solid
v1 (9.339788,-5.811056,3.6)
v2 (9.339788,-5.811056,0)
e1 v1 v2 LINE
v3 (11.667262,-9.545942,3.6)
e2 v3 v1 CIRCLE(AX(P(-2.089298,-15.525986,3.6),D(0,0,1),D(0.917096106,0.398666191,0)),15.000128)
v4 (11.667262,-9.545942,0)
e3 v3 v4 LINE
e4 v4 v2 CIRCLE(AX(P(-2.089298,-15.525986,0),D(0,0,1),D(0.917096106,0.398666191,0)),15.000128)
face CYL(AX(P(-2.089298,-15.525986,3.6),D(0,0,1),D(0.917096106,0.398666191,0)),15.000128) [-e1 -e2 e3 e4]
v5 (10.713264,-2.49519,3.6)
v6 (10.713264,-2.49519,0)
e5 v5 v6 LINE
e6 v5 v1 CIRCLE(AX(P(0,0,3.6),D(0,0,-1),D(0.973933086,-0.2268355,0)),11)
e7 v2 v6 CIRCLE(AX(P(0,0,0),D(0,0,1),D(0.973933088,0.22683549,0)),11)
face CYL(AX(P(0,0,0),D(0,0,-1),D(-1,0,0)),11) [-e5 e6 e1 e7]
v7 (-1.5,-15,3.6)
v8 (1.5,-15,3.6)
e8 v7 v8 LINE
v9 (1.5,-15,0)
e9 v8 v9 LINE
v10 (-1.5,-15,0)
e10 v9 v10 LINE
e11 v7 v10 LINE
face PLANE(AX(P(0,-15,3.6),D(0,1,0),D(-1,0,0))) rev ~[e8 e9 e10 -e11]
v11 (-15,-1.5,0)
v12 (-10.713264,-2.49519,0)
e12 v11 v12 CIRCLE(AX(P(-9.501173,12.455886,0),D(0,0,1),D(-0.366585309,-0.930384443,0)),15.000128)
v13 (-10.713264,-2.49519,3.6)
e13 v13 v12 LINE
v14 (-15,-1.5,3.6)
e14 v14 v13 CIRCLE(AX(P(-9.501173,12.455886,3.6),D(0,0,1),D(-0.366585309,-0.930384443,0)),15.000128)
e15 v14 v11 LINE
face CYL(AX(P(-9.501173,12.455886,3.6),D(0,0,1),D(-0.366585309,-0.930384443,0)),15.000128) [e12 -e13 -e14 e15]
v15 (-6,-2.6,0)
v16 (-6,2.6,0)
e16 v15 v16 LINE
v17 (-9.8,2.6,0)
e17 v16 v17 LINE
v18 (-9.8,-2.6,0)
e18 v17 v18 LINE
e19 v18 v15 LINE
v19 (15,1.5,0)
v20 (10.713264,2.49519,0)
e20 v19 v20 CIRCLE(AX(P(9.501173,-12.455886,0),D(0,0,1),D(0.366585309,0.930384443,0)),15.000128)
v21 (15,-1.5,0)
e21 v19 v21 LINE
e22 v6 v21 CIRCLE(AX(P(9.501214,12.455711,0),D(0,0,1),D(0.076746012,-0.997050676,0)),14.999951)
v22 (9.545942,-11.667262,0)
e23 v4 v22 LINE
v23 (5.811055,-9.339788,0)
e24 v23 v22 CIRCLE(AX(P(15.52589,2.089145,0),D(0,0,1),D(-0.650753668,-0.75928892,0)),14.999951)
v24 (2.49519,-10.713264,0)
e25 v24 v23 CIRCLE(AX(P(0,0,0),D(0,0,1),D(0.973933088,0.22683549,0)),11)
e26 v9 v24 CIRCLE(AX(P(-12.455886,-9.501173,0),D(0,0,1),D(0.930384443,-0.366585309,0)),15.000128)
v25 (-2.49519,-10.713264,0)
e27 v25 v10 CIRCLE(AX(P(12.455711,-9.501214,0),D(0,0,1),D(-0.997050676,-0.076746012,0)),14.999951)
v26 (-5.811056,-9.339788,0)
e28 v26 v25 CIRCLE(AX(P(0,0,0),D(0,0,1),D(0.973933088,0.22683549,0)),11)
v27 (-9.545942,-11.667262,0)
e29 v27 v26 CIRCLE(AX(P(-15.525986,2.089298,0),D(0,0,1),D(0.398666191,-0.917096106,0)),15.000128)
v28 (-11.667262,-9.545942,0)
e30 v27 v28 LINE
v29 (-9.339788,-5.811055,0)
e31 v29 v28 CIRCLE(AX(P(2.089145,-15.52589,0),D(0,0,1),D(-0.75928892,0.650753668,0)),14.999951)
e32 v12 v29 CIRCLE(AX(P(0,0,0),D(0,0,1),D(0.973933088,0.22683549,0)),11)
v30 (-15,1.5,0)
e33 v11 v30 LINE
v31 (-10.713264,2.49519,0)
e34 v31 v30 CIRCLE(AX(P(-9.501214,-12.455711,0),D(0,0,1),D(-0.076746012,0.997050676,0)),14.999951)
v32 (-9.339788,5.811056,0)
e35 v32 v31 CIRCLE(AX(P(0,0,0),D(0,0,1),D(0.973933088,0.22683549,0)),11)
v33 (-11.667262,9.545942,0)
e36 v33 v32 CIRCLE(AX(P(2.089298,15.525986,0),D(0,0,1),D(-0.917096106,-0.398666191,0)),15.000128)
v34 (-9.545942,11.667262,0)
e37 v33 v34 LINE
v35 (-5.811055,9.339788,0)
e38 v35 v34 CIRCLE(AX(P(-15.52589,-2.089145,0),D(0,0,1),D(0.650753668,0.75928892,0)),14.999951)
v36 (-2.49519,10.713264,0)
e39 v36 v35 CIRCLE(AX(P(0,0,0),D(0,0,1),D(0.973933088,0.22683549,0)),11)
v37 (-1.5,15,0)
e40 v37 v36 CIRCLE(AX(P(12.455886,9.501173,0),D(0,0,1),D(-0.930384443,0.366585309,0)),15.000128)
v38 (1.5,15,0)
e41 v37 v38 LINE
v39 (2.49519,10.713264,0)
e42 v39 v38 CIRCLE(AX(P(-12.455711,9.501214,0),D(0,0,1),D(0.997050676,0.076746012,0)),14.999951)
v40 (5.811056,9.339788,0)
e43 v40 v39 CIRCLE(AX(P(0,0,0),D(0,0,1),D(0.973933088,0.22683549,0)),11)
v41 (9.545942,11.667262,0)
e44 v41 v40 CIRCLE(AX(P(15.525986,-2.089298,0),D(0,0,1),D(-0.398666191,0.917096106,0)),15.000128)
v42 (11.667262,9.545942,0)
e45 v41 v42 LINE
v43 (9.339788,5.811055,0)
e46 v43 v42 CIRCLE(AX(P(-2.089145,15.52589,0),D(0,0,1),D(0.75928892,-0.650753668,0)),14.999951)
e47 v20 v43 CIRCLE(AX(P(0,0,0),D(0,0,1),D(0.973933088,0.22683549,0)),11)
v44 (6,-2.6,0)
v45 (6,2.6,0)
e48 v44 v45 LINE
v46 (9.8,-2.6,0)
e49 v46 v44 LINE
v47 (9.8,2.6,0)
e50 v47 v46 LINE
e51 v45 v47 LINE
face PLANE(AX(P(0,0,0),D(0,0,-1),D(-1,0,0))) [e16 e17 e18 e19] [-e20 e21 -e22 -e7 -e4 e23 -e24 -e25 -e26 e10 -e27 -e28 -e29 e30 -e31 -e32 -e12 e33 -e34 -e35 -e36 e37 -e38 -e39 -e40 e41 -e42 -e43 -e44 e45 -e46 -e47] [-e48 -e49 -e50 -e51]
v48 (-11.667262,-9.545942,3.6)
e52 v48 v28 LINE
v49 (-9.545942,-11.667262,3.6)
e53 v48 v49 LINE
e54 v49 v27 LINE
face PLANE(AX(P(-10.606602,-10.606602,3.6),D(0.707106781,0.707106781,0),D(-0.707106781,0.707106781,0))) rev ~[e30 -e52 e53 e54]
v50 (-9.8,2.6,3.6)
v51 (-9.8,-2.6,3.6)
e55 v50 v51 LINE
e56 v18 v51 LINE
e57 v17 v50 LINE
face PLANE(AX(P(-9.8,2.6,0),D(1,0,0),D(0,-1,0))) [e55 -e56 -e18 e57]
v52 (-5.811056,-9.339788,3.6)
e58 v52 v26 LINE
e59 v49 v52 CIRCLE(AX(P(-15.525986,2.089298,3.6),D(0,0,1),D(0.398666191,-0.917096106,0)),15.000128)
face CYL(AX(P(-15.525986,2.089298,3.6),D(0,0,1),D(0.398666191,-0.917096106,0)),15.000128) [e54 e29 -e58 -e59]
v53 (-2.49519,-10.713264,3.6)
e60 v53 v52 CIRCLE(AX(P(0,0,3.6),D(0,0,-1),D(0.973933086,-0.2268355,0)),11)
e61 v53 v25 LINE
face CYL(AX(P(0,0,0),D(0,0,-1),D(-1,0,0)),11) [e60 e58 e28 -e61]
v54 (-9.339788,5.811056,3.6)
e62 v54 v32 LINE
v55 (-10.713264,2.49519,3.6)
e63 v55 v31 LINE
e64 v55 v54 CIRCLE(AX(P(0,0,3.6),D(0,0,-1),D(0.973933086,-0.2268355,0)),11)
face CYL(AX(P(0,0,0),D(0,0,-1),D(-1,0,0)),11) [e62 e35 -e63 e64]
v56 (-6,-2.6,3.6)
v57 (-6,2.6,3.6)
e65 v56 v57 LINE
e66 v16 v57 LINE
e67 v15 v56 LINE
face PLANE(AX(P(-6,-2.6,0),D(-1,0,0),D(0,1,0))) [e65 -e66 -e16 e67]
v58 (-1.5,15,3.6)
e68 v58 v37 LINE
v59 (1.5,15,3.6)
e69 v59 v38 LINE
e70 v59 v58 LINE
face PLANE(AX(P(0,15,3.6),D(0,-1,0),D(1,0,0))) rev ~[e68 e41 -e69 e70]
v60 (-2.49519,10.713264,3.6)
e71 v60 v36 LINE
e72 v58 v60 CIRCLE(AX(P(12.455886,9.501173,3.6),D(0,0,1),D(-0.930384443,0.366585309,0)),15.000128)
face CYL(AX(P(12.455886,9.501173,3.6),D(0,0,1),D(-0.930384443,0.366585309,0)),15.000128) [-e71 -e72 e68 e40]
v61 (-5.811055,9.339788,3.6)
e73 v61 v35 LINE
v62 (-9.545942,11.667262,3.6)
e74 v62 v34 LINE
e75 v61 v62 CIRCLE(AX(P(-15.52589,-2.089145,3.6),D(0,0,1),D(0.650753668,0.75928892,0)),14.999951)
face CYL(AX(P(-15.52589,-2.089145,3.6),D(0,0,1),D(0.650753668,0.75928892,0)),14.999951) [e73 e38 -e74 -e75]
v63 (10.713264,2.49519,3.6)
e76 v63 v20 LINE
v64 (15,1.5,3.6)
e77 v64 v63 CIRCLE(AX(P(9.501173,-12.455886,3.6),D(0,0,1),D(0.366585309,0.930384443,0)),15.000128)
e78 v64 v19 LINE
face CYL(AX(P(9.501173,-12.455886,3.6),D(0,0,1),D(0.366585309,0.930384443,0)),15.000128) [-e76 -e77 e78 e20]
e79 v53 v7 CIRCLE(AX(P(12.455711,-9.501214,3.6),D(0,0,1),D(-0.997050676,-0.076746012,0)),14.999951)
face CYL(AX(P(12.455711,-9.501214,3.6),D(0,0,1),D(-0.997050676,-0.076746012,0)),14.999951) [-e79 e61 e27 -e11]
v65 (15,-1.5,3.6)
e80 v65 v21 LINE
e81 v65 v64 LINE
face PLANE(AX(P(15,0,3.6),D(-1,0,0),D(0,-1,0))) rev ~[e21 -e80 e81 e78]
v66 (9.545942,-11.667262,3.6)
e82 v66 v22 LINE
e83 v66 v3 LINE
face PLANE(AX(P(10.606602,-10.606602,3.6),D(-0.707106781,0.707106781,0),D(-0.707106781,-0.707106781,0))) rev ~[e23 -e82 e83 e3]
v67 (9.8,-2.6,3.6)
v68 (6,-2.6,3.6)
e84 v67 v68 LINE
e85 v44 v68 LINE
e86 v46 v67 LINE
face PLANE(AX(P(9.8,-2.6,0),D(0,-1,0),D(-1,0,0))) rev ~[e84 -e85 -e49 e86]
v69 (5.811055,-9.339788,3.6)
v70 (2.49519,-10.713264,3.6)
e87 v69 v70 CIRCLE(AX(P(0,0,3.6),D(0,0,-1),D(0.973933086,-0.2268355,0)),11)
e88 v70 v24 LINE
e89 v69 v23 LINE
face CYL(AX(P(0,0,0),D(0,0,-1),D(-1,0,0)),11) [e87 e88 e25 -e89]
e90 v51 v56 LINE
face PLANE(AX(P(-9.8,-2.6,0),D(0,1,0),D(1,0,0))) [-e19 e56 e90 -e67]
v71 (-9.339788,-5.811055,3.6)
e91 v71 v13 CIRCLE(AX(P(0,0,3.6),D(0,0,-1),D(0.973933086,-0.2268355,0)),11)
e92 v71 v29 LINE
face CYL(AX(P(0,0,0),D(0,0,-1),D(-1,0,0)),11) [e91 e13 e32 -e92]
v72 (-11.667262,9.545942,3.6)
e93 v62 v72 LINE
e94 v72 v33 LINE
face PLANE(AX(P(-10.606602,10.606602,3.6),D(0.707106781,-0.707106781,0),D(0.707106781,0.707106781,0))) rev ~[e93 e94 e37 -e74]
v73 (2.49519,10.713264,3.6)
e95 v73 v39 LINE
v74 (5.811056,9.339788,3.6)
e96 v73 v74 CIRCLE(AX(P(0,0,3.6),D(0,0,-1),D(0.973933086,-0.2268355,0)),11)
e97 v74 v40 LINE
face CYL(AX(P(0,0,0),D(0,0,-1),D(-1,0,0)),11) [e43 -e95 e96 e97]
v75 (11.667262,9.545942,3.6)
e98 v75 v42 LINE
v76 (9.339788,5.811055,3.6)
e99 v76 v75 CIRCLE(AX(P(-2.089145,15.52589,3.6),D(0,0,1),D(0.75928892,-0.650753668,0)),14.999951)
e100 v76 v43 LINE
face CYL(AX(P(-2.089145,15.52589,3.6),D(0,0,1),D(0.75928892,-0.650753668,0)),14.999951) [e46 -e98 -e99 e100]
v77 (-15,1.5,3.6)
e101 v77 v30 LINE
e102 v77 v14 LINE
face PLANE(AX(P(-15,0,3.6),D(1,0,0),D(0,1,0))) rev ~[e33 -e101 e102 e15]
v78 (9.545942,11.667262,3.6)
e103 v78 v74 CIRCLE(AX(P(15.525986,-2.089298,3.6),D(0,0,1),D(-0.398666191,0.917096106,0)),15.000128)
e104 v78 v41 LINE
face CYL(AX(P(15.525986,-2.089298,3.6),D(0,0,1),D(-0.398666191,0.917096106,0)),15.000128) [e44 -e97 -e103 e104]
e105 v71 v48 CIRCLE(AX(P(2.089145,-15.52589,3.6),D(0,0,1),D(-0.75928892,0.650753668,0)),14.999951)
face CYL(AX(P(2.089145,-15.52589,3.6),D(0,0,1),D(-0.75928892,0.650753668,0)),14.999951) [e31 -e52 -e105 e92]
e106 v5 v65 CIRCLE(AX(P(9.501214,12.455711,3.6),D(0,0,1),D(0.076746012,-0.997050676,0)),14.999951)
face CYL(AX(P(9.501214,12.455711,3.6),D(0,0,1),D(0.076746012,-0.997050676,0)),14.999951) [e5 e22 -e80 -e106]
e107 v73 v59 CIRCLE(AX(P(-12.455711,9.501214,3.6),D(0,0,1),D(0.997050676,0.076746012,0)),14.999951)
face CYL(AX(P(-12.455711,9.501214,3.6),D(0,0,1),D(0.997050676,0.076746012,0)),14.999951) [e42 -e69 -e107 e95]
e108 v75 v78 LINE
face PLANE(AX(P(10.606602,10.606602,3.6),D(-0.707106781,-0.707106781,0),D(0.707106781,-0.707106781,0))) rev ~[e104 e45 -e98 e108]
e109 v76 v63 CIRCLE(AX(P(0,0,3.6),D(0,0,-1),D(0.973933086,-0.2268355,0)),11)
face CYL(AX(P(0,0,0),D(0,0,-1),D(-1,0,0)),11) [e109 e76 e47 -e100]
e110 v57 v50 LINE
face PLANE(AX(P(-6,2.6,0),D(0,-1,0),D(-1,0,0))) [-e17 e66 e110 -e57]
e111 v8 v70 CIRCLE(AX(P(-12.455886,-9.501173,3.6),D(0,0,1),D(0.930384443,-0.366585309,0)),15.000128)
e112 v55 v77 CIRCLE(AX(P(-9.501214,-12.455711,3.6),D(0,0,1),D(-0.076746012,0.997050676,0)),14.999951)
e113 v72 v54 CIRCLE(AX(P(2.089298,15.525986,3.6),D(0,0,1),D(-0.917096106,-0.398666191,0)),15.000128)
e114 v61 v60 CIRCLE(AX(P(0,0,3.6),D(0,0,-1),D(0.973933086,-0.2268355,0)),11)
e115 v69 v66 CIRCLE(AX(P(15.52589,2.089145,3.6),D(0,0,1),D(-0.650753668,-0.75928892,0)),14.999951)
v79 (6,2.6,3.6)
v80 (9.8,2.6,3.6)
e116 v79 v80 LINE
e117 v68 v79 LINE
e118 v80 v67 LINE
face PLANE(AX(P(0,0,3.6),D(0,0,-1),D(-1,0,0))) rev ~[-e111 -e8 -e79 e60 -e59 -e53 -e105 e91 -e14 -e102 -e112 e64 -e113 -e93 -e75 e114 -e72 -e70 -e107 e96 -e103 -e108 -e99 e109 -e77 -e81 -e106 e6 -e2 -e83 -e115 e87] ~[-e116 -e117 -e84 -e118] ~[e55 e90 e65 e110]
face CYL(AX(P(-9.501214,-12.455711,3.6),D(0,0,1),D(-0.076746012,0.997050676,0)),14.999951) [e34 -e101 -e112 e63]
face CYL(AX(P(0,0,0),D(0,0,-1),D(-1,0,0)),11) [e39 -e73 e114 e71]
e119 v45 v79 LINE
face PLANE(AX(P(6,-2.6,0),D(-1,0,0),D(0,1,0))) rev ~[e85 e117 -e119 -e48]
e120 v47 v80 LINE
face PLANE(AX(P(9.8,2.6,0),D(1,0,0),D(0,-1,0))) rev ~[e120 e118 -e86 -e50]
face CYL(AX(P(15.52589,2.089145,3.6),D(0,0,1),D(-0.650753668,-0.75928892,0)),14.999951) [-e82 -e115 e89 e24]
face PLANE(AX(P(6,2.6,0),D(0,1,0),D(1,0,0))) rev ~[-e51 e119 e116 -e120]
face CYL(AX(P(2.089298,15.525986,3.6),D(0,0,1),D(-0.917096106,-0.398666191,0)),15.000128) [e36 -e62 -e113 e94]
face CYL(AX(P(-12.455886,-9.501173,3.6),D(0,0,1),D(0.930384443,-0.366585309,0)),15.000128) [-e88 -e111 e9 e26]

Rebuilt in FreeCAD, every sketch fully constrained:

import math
import FreeCAD as App
import Part
import Sketcher

V = App.Vector


def add_polygon(sketch, points):
    """Adds a closed chain of lines whose ends are joined by coincident constraints."""
    first, n = sketch.GeometryCount, len(points)
    for a, b in zip(points, points[1:] + points[:1]):
        sketch.addGeometry(Part.LineSegment(App.Vector(*a, 0), App.Vector(*b, 0)), False)
    for i in range(n):
        sketch.addConstraint(Sketcher.Constraint("Coincident", first + i, 2, first + (i + 1) % n, 1))

doc = App.newDocument("Part")
params = doc.addObject("Spreadsheet::Sheet", "Params")
for row, (alias, value) in enumerate([
    ("sketch1_diameter", "22 mm"),
    ("pad1_length", "3.6 mm"),
    ("sketch2_radius", "15 mm"),
    ("pad2_length", "3.6 mm"),
    ("sketch3_width", "3.8 mm"),
    ("sketch3_height", "5.2 mm"),
    ("pocket1_length", "3.6 mm"),
], start=1):
    params.set(f"A{row}", alias)
    params.set(f"B{row}", "=" + value)
    params.setAlias(f"B{row}", alias)

body = doc.addObject("PartDesign::Body", "Body")

# Sketch on XY plane
sketch1 = doc.addObject("Sketcher::SketchObject", "Sketch")
body.addObject(sketch1)
sketch1.AttachmentSupport = (doc.XY_Plane, [""])
sketch1.MapMode = "FlatFace"
sketch1.addGeometry(Part.Circle(V(0, 0, 0), V(0, 0, 1), 11), False)
sketch1.addConstraint(Sketcher.Constraint("Coincident", 0, 3, -1, 1))
sketch1.addConstraint(Sketcher.Constraint("Diameter", 0, 22.0))
sketch1.setExpression("Constraints[1]", "Params.sketch1_diameter")
pad1 = doc.addObject("PartDesign::Pad", "Pad")
body.addObject(pad1)
pad1.Profile = sketch1
pad1.setExpression("Length", "Params.pad1_length")

# Sketch on XY plane
sketch2 = doc.addObject("Sketcher::SketchObject", "Sketch001")
body.addObject(sketch2)
sketch2.AttachmentSupport = (doc.XY_Plane, [""])
sketch2.MapMode = "FlatFace"
sketch2.AttachmentOffset = App.Placement(V(0, 0, 3.6), App.Rotation())
sketch2.addGeometry(Part.ArcOfCircle(Part.Circle(V(9.5, 12.5, 0), V(0, 0, 1), 15), math.radians(-85.6), math.radians(-68.49)), False)
sketch2.addGeometry(Part.LineSegment(V(15, -1.5, 0), V(15, 1.5, 0)), False)
sketch2.addGeometry(Part.ArcOfCircle(Part.Circle(V(9.5, -12.5, 0), V(0, 0, 1), 15), math.radians(68.49), math.radians(85.6)), False)
sketch2.addGeometry(Part.ArcOfCircle(Part.Circle(V(0, 0, 0), V(0, 0, 1), 10.9), math.radians(-13), math.radians(13)), False)
sketch2.addConstraint(Sketcher.Constraint("Coincident", 0, 2, 1, 1))
sketch2.addConstraint(Sketcher.Constraint("Coincident", 1, 2, 2, 1))
sketch2.addConstraint(Sketcher.Constraint("Coincident", 2, 2, 3, 2))
sketch2.addConstraint(Sketcher.Constraint("Coincident", 3, 1, 0, 1))
sketch2.addConstraint(Sketcher.Constraint("Vertical", 1))
sketch2.addConstraint(Sketcher.Constraint("Coincident", 3, 3, -1, 1))
sketch2.addConstraint(Sketcher.Constraint("Equal", 0, 2))
sketch2.addConstraint(Sketcher.Constraint("Symmetric", 0, 3, 2, 3, -1))
sketch2.addConstraint(Sketcher.Constraint("Radius", 0, 15.0))
sketch2.addConstraint(Sketcher.Constraint("DistanceX", -1, 1, 0, 2, 15.0))
sketch2.addConstraint(Sketcher.Constraint("DistanceY", 0, 2, -1, 1, 1.5))
sketch2.addConstraint(Sketcher.Constraint("DistanceY", -1, 1, 2, 2, 2.5))
sketch2.addConstraint(Sketcher.Constraint("Radius", 3, 10.9418))
sketch2.setExpression("Constraints[8]", "Params.sketch2_radius")
pad2 = doc.addObject("PartDesign::Pad", "Pad001")
body.addObject(pad2)
pad2.Profile = sketch2
pad2.setExpression("Length", "Params.pad2_length")
pad2.Reversed = True

# Sketch on XY plane
sketch3 = doc.addObject("Sketcher::SketchObject", "Sketch002")
body.addObject(sketch3)
sketch3.AttachmentSupport = (doc.XY_Plane, [""])
sketch3.MapMode = "FlatFace"
add_polygon(sketch3, [(9.8, 2.6), (9.8, -2.6), (6, -2.6), (6, 2.6)])  # lines 0-3
add_polygon(sketch3, [(-6, -2.6), (-9.8, -2.6), (-9.8, 2.6), (-6, 2.6)])  # lines 4-7
sketch3.addConstraint(Sketcher.Constraint("Vertical", 0))
sketch3.addConstraint(Sketcher.Constraint("Horizontal", 1))
sketch3.addConstraint(Sketcher.Constraint("Vertical", 2))
sketch3.addConstraint(Sketcher.Constraint("Horizontal", 3))
sketch3.addConstraint(Sketcher.Constraint("Horizontal", 4))
sketch3.addConstraint(Sketcher.Constraint("Vertical", 5))
sketch3.addConstraint(Sketcher.Constraint("Horizontal", 6))
sketch3.addConstraint(Sketcher.Constraint("Vertical", 7))
sketch3.addConstraint(Sketcher.Constraint("Symmetric", 3, 2, 4, 2, -1, 1))
sketch3.addConstraint(Sketcher.Constraint("Symmetric", 1, 2, 6, 2, -1, 1))
sketch3.addConstraint(Sketcher.Constraint("Horizontal", 1, 2, 4, 2))
sketch3.addConstraint(Sketcher.Constraint("DistanceX", 1, 2, 1, 1, 3.8))
sketch3.addConstraint(Sketcher.Constraint("DistanceY", 0, 2, 0, 1, 5.2))
sketch3.addConstraint(Sketcher.Constraint("DistanceX", -1, 1, 1, 2, 6.0))
sketch3.setExpression("Constraints[19]", "Params.sketch3_width")
sketch3.setExpression("Constraints[20]", "Params.sketch3_height")
pocket1 = doc.addObject("PartDesign::Pocket", "Pocket")
body.addObject(pocket1)
pocket1.Profile = sketch3
pocket1.setExpression("Length", "Params.pocket1_length")
pocket1.Reversed = True
doc.recompute()

polarpattern = doc.addObject("PartDesign::PolarPattern", "PolarPattern")
body.addObject(polarpattern)
polarpattern.Originals = [pad2]
polarpattern.Axis = (doc.Z_Axis, [""])
polarpattern.Angle = 360
polarpattern.Occurrences = 8
body.Tip = polarpattern

doc.recompute()
